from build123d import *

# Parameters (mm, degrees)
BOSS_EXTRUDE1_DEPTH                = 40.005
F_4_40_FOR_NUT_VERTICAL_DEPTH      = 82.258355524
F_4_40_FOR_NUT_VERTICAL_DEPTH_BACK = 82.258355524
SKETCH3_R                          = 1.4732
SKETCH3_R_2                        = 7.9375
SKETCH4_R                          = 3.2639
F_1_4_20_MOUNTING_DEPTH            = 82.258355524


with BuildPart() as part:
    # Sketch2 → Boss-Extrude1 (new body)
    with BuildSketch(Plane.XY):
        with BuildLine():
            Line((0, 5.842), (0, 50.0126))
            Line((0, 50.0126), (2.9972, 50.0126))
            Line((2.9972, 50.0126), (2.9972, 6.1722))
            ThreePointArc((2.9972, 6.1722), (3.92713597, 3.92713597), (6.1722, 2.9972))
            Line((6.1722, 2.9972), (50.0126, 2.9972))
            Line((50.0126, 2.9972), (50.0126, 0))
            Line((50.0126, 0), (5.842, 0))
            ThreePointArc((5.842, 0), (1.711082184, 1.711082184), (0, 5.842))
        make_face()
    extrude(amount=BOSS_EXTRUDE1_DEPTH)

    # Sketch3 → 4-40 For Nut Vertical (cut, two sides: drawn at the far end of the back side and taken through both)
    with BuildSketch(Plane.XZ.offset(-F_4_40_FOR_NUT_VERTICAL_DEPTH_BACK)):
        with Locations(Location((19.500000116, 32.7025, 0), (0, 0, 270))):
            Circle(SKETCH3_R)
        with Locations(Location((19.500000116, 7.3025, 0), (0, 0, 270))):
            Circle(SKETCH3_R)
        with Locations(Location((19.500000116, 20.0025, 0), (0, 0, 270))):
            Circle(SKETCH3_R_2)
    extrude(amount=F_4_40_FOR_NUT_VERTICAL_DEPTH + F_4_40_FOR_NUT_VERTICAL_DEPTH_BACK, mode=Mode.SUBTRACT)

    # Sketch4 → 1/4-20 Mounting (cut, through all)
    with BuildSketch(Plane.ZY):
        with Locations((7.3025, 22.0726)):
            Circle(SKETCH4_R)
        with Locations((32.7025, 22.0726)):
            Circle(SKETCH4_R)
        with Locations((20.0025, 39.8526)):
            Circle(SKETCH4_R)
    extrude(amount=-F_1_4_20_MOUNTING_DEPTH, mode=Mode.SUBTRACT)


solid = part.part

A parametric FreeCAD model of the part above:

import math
import FreeCAD as App
import Part
import Sketcher
from FreeCAD import Vector
Q = App.Units.Quantity

doc = App.newDocument("Part")
body = doc.addObject("PartDesign::Body", "Body")

sketch1 = body.newObject("Sketcher::SketchObject", "Sketch")
sketch1.AttachmentSupport = (doc.getObject("XY_Plane"), [""])
sketch1.MapMode = "FlatFace"
sketch1.addGeometry([
    Part.LineSegment(Vector(0, 50, 0), Vector(0, 5.8, 0)),
    Part.ArcOfCircle(Part.Circle(Vector(5.8, 5.8, 0), Vector(0, 0, 1), 5.8), math.radians(180), math.radians(270)),
    Part.LineSegment(Vector(5.8, 0, 0), Vector(50, 0, 0)),
    Part.LineSegment(Vector(50, 0, 0), Vector(50, 3, 0)),
    Part.LineSegment(Vector(50, 3, 0), Vector(6.2, 3, 0)),
    Part.ArcOfCircle(Part.Circle(Vector(6.2, 6.2, 0), Vector(0, 0, 1), 3.2), math.radians(-180), math.radians(-90)),
    Part.LineSegment(Vector(3, 6.2, 0), Vector(3, 50, 0)),
    Part.LineSegment(Vector(3, 50, 0), Vector(0, 50, 0)),
], False)
sketch1.addConstraint([
    Sketcher.Constraint("Tangent", 0, 2, 1, 1),
    Sketcher.Constraint("Tangent", 1, 2, 2, 1),
    Sketcher.Constraint("Coincident", 2, 2, 3, 1),
    Sketcher.Constraint("Coincident", 3, 2, 4, 1),
    Sketcher.Constraint("Tangent", 4, 2, 5, 2),
    Sketcher.Constraint("Tangent", 5, 1, 6, 1),
    Sketcher.Constraint("Coincident", 6, 2, 7, 1),
    Sketcher.Constraint("Coincident", 7, 2, 0, 1),
    Sketcher.Constraint("Vertical", 0),
    Sketcher.Constraint("Horizontal", 2),
    Sketcher.Constraint("Vertical", 3),
    Sketcher.Constraint("Horizontal", 4),
    Sketcher.Constraint("Vertical", 6),
    Sketcher.Constraint("Horizontal", 7),
    Sketcher.Constraint("PointOnObject", 0, 2, -2),
    Sketcher.Constraint("PointOnObject", 1, 2, -1),
    Sketcher.Constraint("Equal", 2, 0),
    Sketcher.Constraint("Equal", 7, 3),
    Sketcher.Constraint("Radius", 1, Q("0.23 in")),
    Sketcher.Constraint("Radius", 5, Q("0.125 in")),
    Sketcher.Constraint("DistanceX", 2, 1, 2, 2, Q("1.739 in")),
    Sketcher.Constraint("DistanceX", 4, 2, 4, 1, Q("1.726 in")),
])
pad1 = body.newObject("PartDesign::Pad", "Pad")
pad1.Profile = sketch1
pad1.Length = Q("1.575 in")

sketch2 = body.newObject("Sketcher::SketchObject", "Sketch001")
sketch2.AttachmentSupport = (doc.getObject("XZ_Plane"), [""])
sketch2.MapMode = "FlatFace"
sketch2.addGeometry([
    Part.Circle(Vector(19.5, 32.7, 0), Vector(0, 0, 1), 1.5),
    Part.Circle(Vector(19.5, 7.3, 0), Vector(0, 0, 1), 1.5),
    Part.Circle(Vector(19.5, 20, 0), Vector(0, 0, 1), 7.9),
], False)
sketch2.addConstraint([
    Sketcher.Constraint("Equal", 0, 1),
    Sketcher.Constraint("Vertical", 0, 3, 1, 3),
    Sketcher.Constraint("Vertical", 1, 3, 2, 3),
    Sketcher.Constraint("Diameter", 0, Q("0.116 in")),
    Sketcher.Constraint("Diameter", 2, Q("0.625 in")),
    Sketcher.Constraint("DistanceY", 1, 3, 0, 3, Q("1 in")),
    Sketcher.Constraint("DistanceY", 2, 3, 0, 3, Q("0.5 in")),
    Sketcher.Constraint("DistanceY", -1, 1, 0, 3, Q("1.2875 in")),
    Sketcher.Constraint("DistanceX", -1, 1, 0, 3, Q("19.5 mm")),
])
pocket1 = body.newObject("PartDesign::Pocket", "Pocket")
pocket1.Profile = sketch2
pocket1.Type = "ThroughAll"
pocket1.Midplane = True

sketch3 = body.newObject("Sketcher::SketchObject", "Sketch002")
sketch3.AttachmentSupport = (doc.getObject("YZ_Plane"), [""])
sketch3.MapMode = "FlatFace"
sketch3.addGeometry([
    Part.Circle(Vector(22.1, 7.3, 0), Vector(0, 0, 1), 3.3),
    Part.Circle(Vector(22.1, 32.7, 0), Vector(0, 0, 1), 3.3),
    Part.Circle(Vector(39.9, 20, 0), Vector(0, 0, 1), 3.3),
], False)
sketch3.addConstraint([
    Sketcher.Constraint("Equal", 0, 1),
    Sketcher.Constraint("Equal", 1, 2),
    Sketcher.Constraint("Vertical", 0, 3, 1, 3),
    Sketcher.Constraint("Diameter", 0, Q("0.257 in")),
    Sketcher.Constraint("DistanceY", 0, 3, 1, 3, Q("1 in")),
    Sketcher.Constraint("DistanceX", 0, 3, 2, 3, Q("0.7 in")),
    Sketcher.Constraint("DistanceY", 0, 3, 2, 3, Q("0.5 in")),
    Sketcher.Constraint("DistanceX", -1, 1, 0, 3, Q("0.869 in")),
    Sketcher.Constraint("DistanceY", -1, 1, 0, 3, Q("0.2875 in")),
])
pocket2 = body.newObject("PartDesign::Pocket", "Pocket001")
pocket2.Profile = sketch3
pocket2.Type = "ThroughAll"
pocket2.Reversed = True

doc.recompute()
